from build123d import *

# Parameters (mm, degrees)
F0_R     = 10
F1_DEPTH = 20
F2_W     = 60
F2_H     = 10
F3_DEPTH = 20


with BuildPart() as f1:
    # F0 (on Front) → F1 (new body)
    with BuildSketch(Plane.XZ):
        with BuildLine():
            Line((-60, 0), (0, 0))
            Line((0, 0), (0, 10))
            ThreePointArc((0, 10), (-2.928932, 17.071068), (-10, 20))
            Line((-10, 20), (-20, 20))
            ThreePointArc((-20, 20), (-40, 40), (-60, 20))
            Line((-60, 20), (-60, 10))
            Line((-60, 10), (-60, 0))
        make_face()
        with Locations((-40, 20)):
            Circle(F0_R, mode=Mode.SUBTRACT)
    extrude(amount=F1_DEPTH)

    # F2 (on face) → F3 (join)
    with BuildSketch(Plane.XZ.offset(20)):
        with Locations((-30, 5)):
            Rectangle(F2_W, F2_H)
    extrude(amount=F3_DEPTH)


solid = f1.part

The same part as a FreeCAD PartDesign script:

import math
import FreeCAD as App
import Part
import Sketcher

V = App.Vector
Q = App.Units.Quantity


def add_polygon(sketch, points):
    """Adds a closed chain of lines whose ends are joined by coincident constraints."""
    first, n = sketch.GeometryCount, len(points)
    for a, b in zip(points, points[1:] + points[:1]):
        sketch.addGeometry(Part.LineSegment(App.Vector(*a, 0), App.Vector(*b, 0)), False)
    for i in range(n):
        sketch.addConstraint(Sketcher.Constraint("Coincident", first + i, 2, first + (i + 1) % n, 1))

doc = App.newDocument("Part")
params = doc.addObject("Spreadsheet::Sheet", "Params")
for row, (alias, value) in enumerate([
    ("sketch1_diameter", "20 mm"),
    ("sketch1_radius", "20 mm"),
    ("sketch1_width", "60 mm"),
    ("pad1_length", "20 mm"),
    ("sketch2_width", "60 mm"),
    ("sketch2_height", "10 mm"),
    ("pad2_length", "20 mm"),
], start=1):
    params.set(f"A{row}", alias)
    params.set(f"B{row}", "=" + value)
    params.setAlias(f"B{row}", alias)

body = doc.addObject("PartDesign::Body", "Body")

# Sketch on XZ plane
sketch1 = body.newObject("Sketcher::SketchObject", "Sketch")
sketch1.AttachmentSupport = (doc.getObject("XZ_Plane"), [""])
sketch1.MapMode = "FlatFace"
sketch1.addGeometry([
    Part.LineSegment(V(-60, 0, 0), V(0, 0, 0)),  # 0
    Part.LineSegment(V(0, 0, 0), V(0, 10, 0)),  # 1
    Part.ArcOfCircle(Part.Circle(V(-9.999999, 10.000001, 0), V(0, 0, 1), 9.999999), math.radians(-0.000004), math.radians(90.000004)),  # 2
    Part.LineSegment(V(-10, 20, 0), V(-20, 20, 0)),  # 3
    Part.ArcOfCircle(Part.Circle(V(-40, 20, 0), V(0, 0, 1), 20), math.radians(0), math.radians(180)),  # 4
    Part.LineSegment(V(-60, 20, 0), V(-60, 0, 0)),  # 5
    Part.Circle(V(-40, 20, 0), V(0, 0, 1), 10),  # 6
], False)
sketch1.addConstraint([
    Sketcher.Constraint("Coincident", 0, 2, 1, 1),
    Sketcher.Constraint("Tangent", 1, 2, 2, 1),
    Sketcher.Constraint("Tangent", 2, 2, 3, 1),
    Sketcher.Constraint("Coincident", 3, 2, 4, 1),
    Sketcher.Constraint("Tangent", 4, 2, 5, 1),
    Sketcher.Constraint("Coincident", 5, 2, 0, 1),
    Sketcher.Constraint("Horizontal", 0),
    Sketcher.Constraint("Vertical", 1),
    Sketcher.Constraint("Horizontal", 3),
    Sketcher.Constraint("Vertical", 5),
    Sketcher.Constraint("Coincident", 0, 2, -1, 1),
    Sketcher.Constraint("Coincident", 6, 3, 4, 3),
    Sketcher.Constraint("Equal", 2, 6),
    Sketcher.Constraint("Horizontal", 6, 3, 2, 2),
    Sketcher.Constraint("Equal", 3, 1),
    Sketcher.Constraint("Diameter", 6, Q("20 mm")),
    Sketcher.Constraint("Radius", 4, Q("20 mm")),
    Sketcher.Constraint("DistanceX", 0, 1, 0, 2, Q("60 mm")),
])
sketch1.setExpression("Constraints[15]", "Params.sketch1_diameter")
sketch1.setExpression("Constraints[16]", "Params.sketch1_radius")
sketch1.setExpression("Constraints[17]", "Params.sketch1_width")
pad1 = body.newObject("PartDesign::Pad", "Pad")
pad1.Profile = sketch1
pad1.setExpression("Length", "Params.pad1_length")

# Sketch on XZ plane
sketch2 = body.newObject("Sketcher::SketchObject", "Sketch001")
sketch2.AttachmentSupport = (doc.getObject("XZ_Plane"), [""])
sketch2.MapMode = "FlatFace"
sketch2.AttachmentOffset = App.Placement(V(0, 0, 20), App.Rotation())
add_polygon(sketch2, [(-60, 10), (-60, 0), (0, 0), (0, 10)])  # lines 0-3
sketch2.addConstraint([
    Sketcher.Constraint("Vertical", 0),
    Sketcher.Constraint("Horizontal", 1),
    Sketcher.Constraint("Vertical", 2),
    Sketcher.Constraint("Horizontal", 3),
    Sketcher.Constraint("Coincident", 1, 2, -1, 1),
    Sketcher.Constraint("DistanceX", 1, 1, 1, 2, Q("60 mm")),
    Sketcher.Constraint("DistanceY", 0, 2, 0, 1, Q("10 mm")),
])
sketch2.setExpression("Constraints[9]", "Params.sketch2_width")
sketch2.setExpression("Constraints[10]", "Params.sketch2_height")
pad2 = body.newObject("PartDesign::Pad", "Pad001")
pad2.Profile = sketch2
pad2.setExpression("Length", "Params.pad2_length")

doc.recompute()
